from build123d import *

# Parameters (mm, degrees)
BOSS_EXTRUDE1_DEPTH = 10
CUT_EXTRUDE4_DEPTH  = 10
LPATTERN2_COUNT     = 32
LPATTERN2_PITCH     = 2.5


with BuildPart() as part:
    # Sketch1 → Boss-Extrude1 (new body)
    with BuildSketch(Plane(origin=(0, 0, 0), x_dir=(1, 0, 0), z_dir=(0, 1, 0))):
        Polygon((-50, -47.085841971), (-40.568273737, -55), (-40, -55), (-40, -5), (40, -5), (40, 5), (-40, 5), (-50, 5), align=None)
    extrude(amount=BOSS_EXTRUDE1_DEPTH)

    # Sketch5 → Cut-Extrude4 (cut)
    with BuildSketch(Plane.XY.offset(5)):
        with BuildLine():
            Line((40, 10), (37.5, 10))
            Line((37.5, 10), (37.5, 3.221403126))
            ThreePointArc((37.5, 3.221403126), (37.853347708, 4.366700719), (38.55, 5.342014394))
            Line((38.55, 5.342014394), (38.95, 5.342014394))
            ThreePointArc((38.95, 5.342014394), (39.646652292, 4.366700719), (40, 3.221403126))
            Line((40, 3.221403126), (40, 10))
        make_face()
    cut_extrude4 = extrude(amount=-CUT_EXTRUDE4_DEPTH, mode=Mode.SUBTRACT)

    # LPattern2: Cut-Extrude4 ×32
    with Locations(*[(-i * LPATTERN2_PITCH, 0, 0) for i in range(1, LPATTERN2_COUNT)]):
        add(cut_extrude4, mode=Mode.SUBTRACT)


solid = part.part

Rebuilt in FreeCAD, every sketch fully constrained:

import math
import FreeCAD as App
import Part
import Sketcher
from FreeCAD import Vector
Q = App.Units.Quantity


def add_polygon(sketch, points):
    """Adds a closed chain of lines whose ends are joined by coincident constraints."""
    first, n = sketch.GeometryCount, len(points)
    for a, b in zip(points, points[1:] + points[:1]):
        sketch.addGeometry(Part.LineSegment(App.Vector(*a, 0), App.Vector(*b, 0)), False)
    for i in range(n):
        sketch.addConstraint(Sketcher.Constraint("Coincident", first + i, 2, first + (i + 1) % n, 1))

doc = App.newDocument("Part")
body = doc.addObject("PartDesign::Body", "Body")

sketch1 = body.newObject("Sketcher::SketchObject", "Sketch")
sketch1.AttachmentSupport = (doc.getObject("XZ_Plane"), [""])
sketch1.MapMode = "FlatFace"
add_polygon(sketch1, [(-50, 47.1), (-40.6, 55), (-40, 55), (-40, 5), (40, 5), (40, -5), (-50, -5)])
sketch1.addConstraint([
    Sketcher.Constraint("Horizontal", 1),
    Sketcher.Constraint("Vertical", 2),
    Sketcher.Constraint("Horizontal", 3),
    Sketcher.Constraint("Vertical", 4),
    Sketcher.Constraint("Horizontal", 5),
    Sketcher.Constraint("Vertical", 6),
    Sketcher.Constraint("Symmetric", 2, 2, 4, 2, -1, 1),
    Sketcher.Constraint("DistanceX", 3, 1, 3, 2, 80.0),
    Sketcher.Constraint("DistanceX", 5, 2, 5, 1, 90.0),
    Sketcher.Constraint("DistanceY", 2, 2, 2, 1, 50.0),
    Sketcher.Constraint("DistanceY", 4, 2, 4, 1, 10.0),
    Sketcher.Constraint("Angle", 0, Q("40 deg")),
    Sketcher.Constraint("DistanceY", 6, 1, 6, 2, 52.085842),
])
pad1 = body.newObject("PartDesign::Pad", "Pad")
pad1.Profile = sketch1
pad1.Length = 10
pad1.Reversed = True

sketch2 = body.newObject("Sketcher::SketchObject", "Sketch001")
sketch2.AttachmentSupport = (doc.getObject("XY_Plane"), [""])
sketch2.MapMode = "FlatFace"
sketch2.AttachmentOffset = App.Placement(Vector(0, 0, 5), App.Rotation())
sketch2.addGeometry([
    Part.LineSegment(Vector(40, 10, 0), Vector(37.5, 10, 0)),
    Part.LineSegment(Vector(37.5, 10, 0), Vector(37.5, 3.22, 0)),
    Part.ArcOfCircle(Part.Circle(Vector(41.21, 2.7, 0), Vector(0, 0, 1), 3.75), math.radians(135), math.radians(172)),
    Part.LineSegment(Vector(38.55, 5.34, 0), Vector(38.95, 5.34, 0)),
    Part.ArcOfCircle(Part.Circle(Vector(36.29, 2.7, 0), Vector(0, 0, 1), 3.75), math.radians(8), math.radians(45)),
    Part.LineSegment(Vector(40, 3.22, 0), Vector(40, 10, 0)),
], False)
sketch2.addConstraint([
    Sketcher.Constraint("Coincident", 0, 2, 1, 1),
    Sketcher.Constraint("Coincident", 1, 2, 2, 2),
    Sketcher.Constraint("Coincident", 2, 1, 3, 1),
    Sketcher.Constraint("Coincident", 3, 2, 4, 2),
    Sketcher.Constraint("Coincident", 4, 1, 5, 1),
    Sketcher.Constraint("Coincident", 5, 2, 0, 1),
    Sketcher.Constraint("Horizontal", 0),
    Sketcher.Constraint("Vertical", 1),
    Sketcher.Constraint("Horizontal", 3),
    Sketcher.Constraint("Vertical", 5),
    Sketcher.Constraint("Equal", 2, 4),
    Sketcher.Constraint("Horizontal", 2, 3, 4, 3),
    Sketcher.Constraint("Horizontal", 1, 2, 4, 1),
    Sketcher.Constraint("Radius", 2, 3.75),
    Sketcher.Constraint("DistanceX", 0, 2, 0, 1, 2.5),
    Sketcher.Constraint("DistanceX", 3, 1, 3, 2, 0.4),
    Sketcher.Constraint("DistanceY", -1, 1, 0, 2, 10.0),
    Sketcher.Constraint("DistanceX", -1, 1, 4, 1, 40.0),
    Sketcher.Constraint("DistanceY", 1, 2, 1, 1, 6.778597),
    Sketcher.Constraint("DistanceY", 1, 2, 2, 1, 2.120611),
])
pocket1 = body.newObject("PartDesign::Pocket", "Pocket")
pocket1.Profile = sketch2
pocket1.Length = 10
doc.recompute()

linearpattern = body.newObject("PartDesign::LinearPattern", "LinearPattern")
linearpattern.Originals = [pocket1]
linearpattern.Direction = (doc.getObject("X_Axis"), [""])
linearpattern.Mode = "offset"
linearpattern.Offset = 2.5
linearpattern.Occurrences = 32
linearpattern.Reversed = True
body.Tip = linearpattern

doc.recompute()
